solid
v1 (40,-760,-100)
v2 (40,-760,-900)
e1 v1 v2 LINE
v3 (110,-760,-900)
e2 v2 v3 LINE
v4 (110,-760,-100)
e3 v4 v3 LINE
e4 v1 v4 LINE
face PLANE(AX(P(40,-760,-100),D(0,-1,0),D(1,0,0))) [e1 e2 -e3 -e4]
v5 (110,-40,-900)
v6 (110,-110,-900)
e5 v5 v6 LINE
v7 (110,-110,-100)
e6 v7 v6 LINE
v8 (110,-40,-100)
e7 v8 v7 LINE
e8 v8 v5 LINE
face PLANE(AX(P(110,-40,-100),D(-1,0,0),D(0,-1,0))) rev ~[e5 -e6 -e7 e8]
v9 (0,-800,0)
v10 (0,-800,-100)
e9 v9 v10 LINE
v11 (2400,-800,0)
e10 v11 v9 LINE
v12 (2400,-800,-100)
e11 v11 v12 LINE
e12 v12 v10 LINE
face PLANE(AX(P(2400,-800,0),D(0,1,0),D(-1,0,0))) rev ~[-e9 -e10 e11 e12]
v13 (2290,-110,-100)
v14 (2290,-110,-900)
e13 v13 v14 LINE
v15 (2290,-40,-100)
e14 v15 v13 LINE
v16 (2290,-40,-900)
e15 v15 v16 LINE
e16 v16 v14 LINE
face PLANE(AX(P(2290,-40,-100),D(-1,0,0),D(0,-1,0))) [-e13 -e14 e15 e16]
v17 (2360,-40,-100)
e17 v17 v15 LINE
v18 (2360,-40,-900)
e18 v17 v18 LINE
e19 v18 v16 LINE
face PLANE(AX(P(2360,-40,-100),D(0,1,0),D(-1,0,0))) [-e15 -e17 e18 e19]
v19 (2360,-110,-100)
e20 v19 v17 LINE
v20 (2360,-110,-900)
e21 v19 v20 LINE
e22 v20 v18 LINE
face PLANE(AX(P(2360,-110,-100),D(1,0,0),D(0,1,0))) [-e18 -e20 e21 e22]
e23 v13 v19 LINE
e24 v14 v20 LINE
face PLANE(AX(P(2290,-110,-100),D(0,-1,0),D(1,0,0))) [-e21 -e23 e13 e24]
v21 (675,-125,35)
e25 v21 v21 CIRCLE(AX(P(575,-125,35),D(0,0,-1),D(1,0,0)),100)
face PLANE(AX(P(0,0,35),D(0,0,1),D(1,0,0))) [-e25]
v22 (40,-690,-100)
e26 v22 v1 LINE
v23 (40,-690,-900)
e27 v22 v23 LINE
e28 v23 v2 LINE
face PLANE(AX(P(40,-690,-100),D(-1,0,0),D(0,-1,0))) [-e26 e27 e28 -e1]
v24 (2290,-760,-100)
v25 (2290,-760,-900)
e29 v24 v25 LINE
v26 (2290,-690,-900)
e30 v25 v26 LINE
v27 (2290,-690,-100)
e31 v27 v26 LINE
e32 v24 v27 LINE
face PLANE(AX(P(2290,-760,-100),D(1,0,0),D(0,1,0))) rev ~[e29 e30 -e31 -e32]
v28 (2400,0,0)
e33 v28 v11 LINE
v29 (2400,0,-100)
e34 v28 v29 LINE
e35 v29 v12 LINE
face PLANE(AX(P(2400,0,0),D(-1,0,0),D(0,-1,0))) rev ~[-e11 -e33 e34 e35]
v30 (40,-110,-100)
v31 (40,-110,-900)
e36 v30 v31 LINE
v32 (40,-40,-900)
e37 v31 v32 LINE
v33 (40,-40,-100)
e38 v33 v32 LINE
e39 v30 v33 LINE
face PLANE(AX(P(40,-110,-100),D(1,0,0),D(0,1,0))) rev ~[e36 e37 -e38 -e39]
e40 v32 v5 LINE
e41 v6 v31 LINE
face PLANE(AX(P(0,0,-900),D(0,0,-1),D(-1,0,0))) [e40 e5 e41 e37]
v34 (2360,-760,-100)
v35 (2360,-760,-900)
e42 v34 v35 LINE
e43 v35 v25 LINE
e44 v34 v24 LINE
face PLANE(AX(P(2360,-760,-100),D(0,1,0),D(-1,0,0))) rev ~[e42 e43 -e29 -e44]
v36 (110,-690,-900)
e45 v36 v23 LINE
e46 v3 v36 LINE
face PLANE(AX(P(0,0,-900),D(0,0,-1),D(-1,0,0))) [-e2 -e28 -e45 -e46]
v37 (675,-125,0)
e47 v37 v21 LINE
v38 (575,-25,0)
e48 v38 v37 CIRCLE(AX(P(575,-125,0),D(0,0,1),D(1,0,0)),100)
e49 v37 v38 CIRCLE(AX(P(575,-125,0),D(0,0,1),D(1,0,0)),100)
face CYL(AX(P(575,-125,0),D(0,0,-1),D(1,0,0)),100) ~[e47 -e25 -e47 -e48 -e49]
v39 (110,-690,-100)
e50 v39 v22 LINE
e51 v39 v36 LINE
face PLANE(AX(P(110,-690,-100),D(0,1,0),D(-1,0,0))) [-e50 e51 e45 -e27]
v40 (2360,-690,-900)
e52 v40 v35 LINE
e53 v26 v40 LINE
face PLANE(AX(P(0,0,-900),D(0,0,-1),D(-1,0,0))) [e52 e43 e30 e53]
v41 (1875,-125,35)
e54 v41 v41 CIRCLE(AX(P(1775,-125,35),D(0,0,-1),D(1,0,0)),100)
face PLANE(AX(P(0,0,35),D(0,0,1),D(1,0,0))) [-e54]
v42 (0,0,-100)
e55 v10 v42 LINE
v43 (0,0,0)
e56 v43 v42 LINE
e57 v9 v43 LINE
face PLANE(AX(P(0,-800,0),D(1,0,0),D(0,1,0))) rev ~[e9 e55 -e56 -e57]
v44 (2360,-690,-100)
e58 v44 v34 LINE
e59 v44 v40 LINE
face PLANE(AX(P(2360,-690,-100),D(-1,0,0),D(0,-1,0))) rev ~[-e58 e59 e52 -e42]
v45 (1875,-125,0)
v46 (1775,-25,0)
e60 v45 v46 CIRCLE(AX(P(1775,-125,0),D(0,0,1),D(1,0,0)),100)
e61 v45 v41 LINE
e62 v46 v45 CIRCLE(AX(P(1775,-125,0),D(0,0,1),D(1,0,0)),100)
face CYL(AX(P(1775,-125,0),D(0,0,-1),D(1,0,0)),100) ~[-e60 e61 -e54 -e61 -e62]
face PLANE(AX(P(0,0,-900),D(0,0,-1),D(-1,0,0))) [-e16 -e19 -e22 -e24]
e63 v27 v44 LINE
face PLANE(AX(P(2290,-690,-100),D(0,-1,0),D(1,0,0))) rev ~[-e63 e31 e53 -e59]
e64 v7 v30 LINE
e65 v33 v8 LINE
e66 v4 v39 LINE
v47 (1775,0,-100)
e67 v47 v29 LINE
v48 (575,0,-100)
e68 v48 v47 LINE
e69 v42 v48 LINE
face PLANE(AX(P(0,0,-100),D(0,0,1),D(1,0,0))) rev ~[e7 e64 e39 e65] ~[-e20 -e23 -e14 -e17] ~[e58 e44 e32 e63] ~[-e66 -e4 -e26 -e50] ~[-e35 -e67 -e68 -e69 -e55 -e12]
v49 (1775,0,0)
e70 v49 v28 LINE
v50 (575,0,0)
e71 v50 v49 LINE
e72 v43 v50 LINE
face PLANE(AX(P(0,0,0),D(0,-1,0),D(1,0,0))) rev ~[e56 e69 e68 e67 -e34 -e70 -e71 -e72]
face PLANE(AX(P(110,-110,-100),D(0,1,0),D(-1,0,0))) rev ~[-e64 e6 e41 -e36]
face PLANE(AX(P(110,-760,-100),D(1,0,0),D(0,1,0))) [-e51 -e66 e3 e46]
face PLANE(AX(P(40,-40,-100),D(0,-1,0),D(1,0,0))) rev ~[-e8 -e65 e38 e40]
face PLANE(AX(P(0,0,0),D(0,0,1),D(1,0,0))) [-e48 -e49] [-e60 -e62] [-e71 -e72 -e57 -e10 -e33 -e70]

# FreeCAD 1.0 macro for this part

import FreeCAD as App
import Part
import Sketcher
from FreeCAD import Vector
Q = App.Units.Quantity


def add_polygon(sketch, points):
    """Adds a closed chain of lines whose ends are joined by coincident constraints."""
    first, n = sketch.GeometryCount, len(points)
    for a, b in zip(points, points[1:] + points[:1]):
        sketch.addGeometry(Part.LineSegment(App.Vector(*a, 0), App.Vector(*b, 0)), False)
    for i in range(n):
        sketch.addConstraint(Sketcher.Constraint("Coincident", first + i, 2, first + (i + 1) % n, 1))

doc = App.newDocument("Part")
body = doc.addObject("PartDesign::Body", "Body")
body.AllowCompound = True

# Sketch on XY plane
sketch1 = body.newObject("Sketcher::SketchObject", "Sketch")
sketch1.AttachmentSupport = (doc.getObject("XY_Plane"), [""])
sketch1.MapMode = "FlatFace"
sketch1.addGeometry([
    Part.Circle(Vector(1775, -125, 0), Vector(0, 0, 1), 100),
    Part.Circle(Vector(575, -125, 0), Vector(0, 0, 1), 100),
], False)
sketch1.addConstraint([
    Sketcher.Constraint("Equal", 0, 1),
    Sketcher.Constraint("Horizontal", 0, 3, 1, 3),
    Sketcher.Constraint("Diameter", 0, Q("200 mm")),
    Sketcher.Constraint("DistanceX", -1, 1, 0, 3, Q("1775 mm")),
    Sketcher.Constraint("DistanceY", 0, 3, -1, 1, Q("125 mm")),
    Sketcher.Constraint("DistanceX", -1, 1, 1, 3, Q("575 mm")),
])
pad1 = body.newObject("PartDesign::Pad", "Pad")
pad1.Profile = sketch1
pad1.Length = 35

# Sketch on XY plane
sketch2 = body.newObject("Sketcher::SketchObject", "Sketch001")
sketch2.AttachmentSupport = (doc.getObject("XY_Plane"), [""])
sketch2.MapMode = "FlatFace"
add_polygon(sketch2, [(575, 0), (0, 0), (0, -800), (2400, -800), (2400, 0), (1775, 0)])  # lines 0-5
sketch2.addGeometry(Part.Circle(Vector(575, -125, 0), Vector(0, 0, 1), 100), False)  # 6
sketch2.addGeometry(Part.Circle(Vector(1775, -125, 0), Vector(0, 0, 1), 100), False)  # 7
sketch2.addConstraint([
    Sketcher.Constraint("Horizontal", 0),
    Sketcher.Constraint("Vertical", 1),
    Sketcher.Constraint("Horizontal", 2),
    Sketcher.Constraint("Vertical", 3),
    Sketcher.Constraint("Horizontal", 4),
    Sketcher.Constraint("Horizontal", 5),
    Sketcher.Constraint("Coincident", 0, 2, -1, 1),
    Sketcher.Constraint("Equal", 6, 7),
    Sketcher.Constraint("Horizontal", 6, 3, 7, 3),
    Sketcher.Constraint("Vertical", 7, 3, 4, 2),
    Sketcher.Constraint("Vertical", 6, 3, 5, 2),
    Sketcher.Constraint("Diameter", 6, Q("200 mm")),
    Sketcher.Constraint("DistanceX", 0, 2, 0, 1, Q("575 mm")),
    Sketcher.Constraint("DistanceX", 2, 1, 2, 2, Q("2400 mm")),
    Sketcher.Constraint("DistanceY", 1, 2, 1, 1, Q("800 mm")),
    Sketcher.Constraint("DistanceY", 6, 3, -1, 1, Q("125 mm")),
    Sketcher.Constraint("DistanceX", -1, 1, 7, 3, Q("1775 mm")),
])
pad2 = body.newObject("PartDesign::Pad", "Pad001")
pad2.Profile = sketch2
pad2.Length = 100
pad2.Reversed = True

# Sketch on XY plane
sketch3 = body.newObject("Sketcher::SketchObject", "Sketch002")
sketch3.AttachmentSupport = (doc.getObject("XY_Plane"), [""])
sketch3.MapMode = "FlatFace"
sketch3.addGeometry(Part.Circle(Vector(575, -125, 0), Vector(0, 0, 1), 100), False)
sketch3.addConstraint([
    Sketcher.Constraint("Diameter", 0, Q("200 mm")),
    Sketcher.Constraint("DistanceX", -1, 1, 0, 3, Q("575 mm")),
    Sketcher.Constraint("DistanceY", 0, 3, -1, 1, Q("125 mm")),
])
pad3 = body.newObject("PartDesign::Pad", "Pad002")
pad3.Profile = sketch3
pad3.Length = 100
pad3.Reversed = True

# Sketch on XY plane
sketch4 = body.newObject("Sketcher::SketchObject", "Sketch003")
sketch4.AttachmentSupport = (doc.getObject("XY_Plane"), [""])
sketch4.MapMode = "FlatFace"
sketch4.addGeometry(Part.Circle(Vector(1775, -125, 0), Vector(0, 0, 1), 100), False)
sketch4.addConstraint([
    Sketcher.Constraint("Diameter", 0, Q("200 mm")),
    Sketcher.Constraint("DistanceX", -1, 1, 0, 3, Q("1775 mm")),
    Sketcher.Constraint("DistanceY", 0, 3, -1, 1, Q("125 mm")),
])
pad4 = body.newObject("PartDesign::Pad", "Pad003")
pad4.Profile = sketch4
pad4.Length = 100
pad4.Reversed = True

# Sketch on XY plane
sketch5 = body.newObject("Sketcher::SketchObject", "Sketch004")
sketch5.AttachmentSupport = (doc.getObject("XY_Plane"), [""])
sketch5.MapMode = "FlatFace"
sketch5.AttachmentOffset = App.Placement(Vector(0, 0, -100), App.Rotation())
add_polygon(sketch5, [(2290, -40), (2360, -40), (2360, -110), (2290, -110)])  # lines 0-3
add_polygon(sketch5, [(2360, -690), (2360, -760), (2290, -760), (2290, -690)])  # lines 4-7
add_polygon(sketch5, [(40, -110), (40, -40), (110, -40), (110, -110)])  # lines 8-11
add_polygon(sketch5, [(110, -760), (40, -760), (40, -690), (110, -690)])  # lines 12-15
sketch5.addConstraint([
    Sketcher.Constraint("Horizontal", 0),
    Sketcher.Constraint("Vertical", 1),
    Sketcher.Constraint("Horizontal", 2),
    Sketcher.Constraint("Vertical", 3),
    Sketcher.Constraint("Vertical", 4),
    Sketcher.Constraint("Horizontal", 5),
    Sketcher.Constraint("Vertical", 6),
    Sketcher.Constraint("Horizontal", 7),
    Sketcher.Constraint("Vertical", 8),
    Sketcher.Constraint("Horizontal", 9),
    Sketcher.Constraint("Vertical", 10),
    Sketcher.Constraint("Horizontal", 11),
    Sketcher.Constraint("Horizontal", 12),
    Sketcher.Constraint("Vertical", 13),
    Sketcher.Constraint("Horizontal", 14),
    Sketcher.Constraint("Vertical", 15),
    Sketcher.Constraint("Horizontal", 3, 2, 8, 2),
    Sketcher.Constraint("Horizontal", 2, 2, 10, 2),
    Sketcher.Constraint("Horizontal", 5, 2, 12, 2),
    Sketcher.Constraint("Horizontal", 7, 2, 13, 2),
    Sketcher.Constraint("Vertical", 1, 2, 4, 2),
    Sketcher.Constraint("Vertical", 3, 2, 5, 2),
    Sketcher.Constraint("Vertical", 11, 2, 12, 2),
    Sketcher.Constraint("Vertical", 10, 2, 14, 2),
    Sketcher.Constraint("Equal", 7, 9),
    Sketcher.Constraint("Equal", 14, 1),
    Sketcher.Constraint("Equal", 3, 4),
    Sketcher.Constraint("DistanceX", 0, 1, 0, 2, Q("70 mm")),
    Sketcher.Constraint("DistanceY", 0, 2, -1, 1, Q("40 mm")),
    Sketcher.Constraint("DistanceX", -1, 1, 8, 2, Q("40 mm")),
    Sketcher.Constraint("DistanceX", -1, 1, 0, 2, Q("2360 mm")),
    Sketcher.Constraint("DistanceY", 4, 2, -1, 1, Q("760 mm")),
])
pad5 = body.newObject("PartDesign::Pad", "Pad004")
pad5.Profile = sketch5
pad5.Length = 800
pad5.Reversed = True

doc.recompute()
